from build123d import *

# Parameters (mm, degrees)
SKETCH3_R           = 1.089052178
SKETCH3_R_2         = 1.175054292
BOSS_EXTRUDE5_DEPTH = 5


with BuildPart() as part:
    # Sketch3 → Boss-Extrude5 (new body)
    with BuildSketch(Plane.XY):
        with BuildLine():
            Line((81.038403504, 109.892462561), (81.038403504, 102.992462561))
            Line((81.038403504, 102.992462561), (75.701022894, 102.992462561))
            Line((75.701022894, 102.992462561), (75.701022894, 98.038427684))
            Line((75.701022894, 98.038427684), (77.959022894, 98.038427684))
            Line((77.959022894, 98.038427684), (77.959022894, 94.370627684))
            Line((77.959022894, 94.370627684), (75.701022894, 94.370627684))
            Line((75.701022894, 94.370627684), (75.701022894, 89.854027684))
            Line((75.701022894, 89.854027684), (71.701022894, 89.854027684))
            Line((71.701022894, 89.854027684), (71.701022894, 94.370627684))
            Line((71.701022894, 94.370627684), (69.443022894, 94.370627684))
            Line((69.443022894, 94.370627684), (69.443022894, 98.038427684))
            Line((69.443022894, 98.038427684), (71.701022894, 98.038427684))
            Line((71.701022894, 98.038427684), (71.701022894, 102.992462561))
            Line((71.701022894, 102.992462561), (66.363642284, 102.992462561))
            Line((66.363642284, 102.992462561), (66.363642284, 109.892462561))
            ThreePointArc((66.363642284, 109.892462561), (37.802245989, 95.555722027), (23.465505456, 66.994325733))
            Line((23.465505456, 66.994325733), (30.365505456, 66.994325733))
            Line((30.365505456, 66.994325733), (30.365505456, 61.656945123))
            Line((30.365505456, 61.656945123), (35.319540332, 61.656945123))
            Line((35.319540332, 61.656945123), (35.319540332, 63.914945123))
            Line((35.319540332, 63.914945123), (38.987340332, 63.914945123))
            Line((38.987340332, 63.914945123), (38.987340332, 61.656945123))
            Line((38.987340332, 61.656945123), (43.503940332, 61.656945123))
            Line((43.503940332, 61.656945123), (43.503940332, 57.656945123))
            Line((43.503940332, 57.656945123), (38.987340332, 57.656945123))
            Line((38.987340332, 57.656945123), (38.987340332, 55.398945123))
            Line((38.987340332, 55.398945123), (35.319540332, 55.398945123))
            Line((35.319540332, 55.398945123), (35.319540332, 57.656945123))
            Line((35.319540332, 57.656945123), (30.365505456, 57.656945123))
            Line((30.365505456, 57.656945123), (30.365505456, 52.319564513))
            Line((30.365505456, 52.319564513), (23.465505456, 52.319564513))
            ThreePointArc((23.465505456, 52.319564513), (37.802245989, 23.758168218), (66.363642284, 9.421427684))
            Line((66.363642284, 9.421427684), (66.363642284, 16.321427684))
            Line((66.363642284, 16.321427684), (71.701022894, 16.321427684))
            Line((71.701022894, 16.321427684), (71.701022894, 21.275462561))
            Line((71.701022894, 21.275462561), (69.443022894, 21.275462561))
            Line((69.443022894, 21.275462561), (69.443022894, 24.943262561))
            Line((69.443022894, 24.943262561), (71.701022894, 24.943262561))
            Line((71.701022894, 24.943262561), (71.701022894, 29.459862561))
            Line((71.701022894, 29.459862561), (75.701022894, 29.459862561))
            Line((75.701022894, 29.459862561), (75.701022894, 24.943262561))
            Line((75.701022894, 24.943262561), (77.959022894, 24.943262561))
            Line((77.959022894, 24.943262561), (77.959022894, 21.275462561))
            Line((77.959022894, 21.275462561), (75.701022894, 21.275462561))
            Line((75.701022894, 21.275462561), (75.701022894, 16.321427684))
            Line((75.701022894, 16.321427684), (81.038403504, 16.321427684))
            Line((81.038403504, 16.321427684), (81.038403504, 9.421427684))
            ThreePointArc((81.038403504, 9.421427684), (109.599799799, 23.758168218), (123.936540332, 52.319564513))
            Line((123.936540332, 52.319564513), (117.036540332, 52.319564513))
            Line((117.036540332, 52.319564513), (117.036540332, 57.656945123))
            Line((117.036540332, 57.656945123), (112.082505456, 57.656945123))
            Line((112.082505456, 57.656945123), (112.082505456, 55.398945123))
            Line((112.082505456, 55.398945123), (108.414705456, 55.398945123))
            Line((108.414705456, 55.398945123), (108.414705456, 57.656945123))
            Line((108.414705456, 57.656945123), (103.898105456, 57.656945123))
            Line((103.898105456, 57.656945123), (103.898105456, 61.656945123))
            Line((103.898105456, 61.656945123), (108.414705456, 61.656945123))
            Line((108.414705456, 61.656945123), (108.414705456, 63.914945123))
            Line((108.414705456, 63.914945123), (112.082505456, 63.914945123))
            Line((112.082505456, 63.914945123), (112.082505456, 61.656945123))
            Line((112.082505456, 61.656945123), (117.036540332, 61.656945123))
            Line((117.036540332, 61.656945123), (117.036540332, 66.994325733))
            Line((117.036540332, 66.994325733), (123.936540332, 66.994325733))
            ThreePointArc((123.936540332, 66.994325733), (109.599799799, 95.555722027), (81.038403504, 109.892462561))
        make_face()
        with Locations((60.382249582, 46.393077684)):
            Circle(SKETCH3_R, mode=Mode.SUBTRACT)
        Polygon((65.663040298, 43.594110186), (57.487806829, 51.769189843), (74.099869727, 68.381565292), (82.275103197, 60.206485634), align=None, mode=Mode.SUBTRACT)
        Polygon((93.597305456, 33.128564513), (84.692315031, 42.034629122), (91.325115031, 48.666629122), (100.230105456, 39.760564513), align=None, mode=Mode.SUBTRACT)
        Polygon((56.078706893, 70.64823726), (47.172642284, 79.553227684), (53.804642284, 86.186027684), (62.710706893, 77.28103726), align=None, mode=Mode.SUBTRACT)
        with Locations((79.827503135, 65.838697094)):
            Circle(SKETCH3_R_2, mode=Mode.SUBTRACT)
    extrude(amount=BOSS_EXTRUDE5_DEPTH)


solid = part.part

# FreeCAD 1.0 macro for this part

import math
import FreeCAD as App
import Part
import Sketcher
from FreeCAD import Vector


def add_polygon(sketch, points):
    """Adds a closed chain of lines whose ends are joined by coincident constraints."""
    first, n = sketch.GeometryCount, len(points)
    for a, b in zip(points, points[1:] + points[:1]):
        sketch.addGeometry(Part.LineSegment(App.Vector(*a, 0), App.Vector(*b, 0)), False)
    for i in range(n):
        sketch.addConstraint(Sketcher.Constraint("Coincident", first + i, 2, first + (i + 1) % n, 1))

doc = App.newDocument("Part")
body = doc.addObject("PartDesign::Body", "Body")

sketch1 = body.newObject("Sketcher::SketchObject", "Sketch")
sketch1.AttachmentSupport = (doc.getObject("XY_Plane"), [""])
sketch1.MapMode = "FlatFace"
sketch1.addGeometry(Part.LineSegment(Vector(81, 109.9, 0), Vector(81, 103, 0)), False)
sketch1.addGeometry(Part.LineSegment(Vector(81, 103, 0), Vector(75.7, 103, 0)), False)
sketch1.addGeometry(Part.LineSegment(Vector(75.7, 103, 0), Vector(75.7, 98, 0)), False)
sketch1.addGeometry(Part.LineSegment(Vector(75.7, 98, 0), Vector(78, 98, 0)), False)
sketch1.addGeometry(Part.LineSegment(Vector(78, 98, 0), Vector(78, 94.4, 0)), False)
sketch1.addGeometry(Part.LineSegment(Vector(78, 94.4, 0), Vector(75.7, 94.4, 0)), False)
sketch1.addGeometry(Part.LineSegment(Vector(75.7, 94.4, 0), Vector(75.7, 89.9, 0)), False)
sketch1.addGeometry(Part.LineSegment(Vector(75.7, 89.9, 0), Vector(71.7, 89.9, 0)), False)
sketch1.addGeometry(Part.LineSegment(Vector(71.7, 89.9, 0), Vector(71.7, 94.4, 0)), False)
sketch1.addGeometry(Part.LineSegment(Vector(71.7, 94.4, 0), Vector(69.4, 94.4, 0)), False)
sketch1.addGeometry(Part.LineSegment(Vector(69.4, 94.4, 0), Vector(69.4, 98, 0)), False)
sketch1.addGeometry(Part.LineSegment(Vector(69.4, 98, 0), Vector(71.7, 98, 0)), False)
sketch1.addGeometry(Part.LineSegment(Vector(71.7, 98, 0), Vector(71.7, 103, 0)), False)
sketch1.addGeometry(Part.LineSegment(Vector(71.7, 103, 0), Vector(66.4, 103, 0)), False)
sketch1.addGeometry(Part.LineSegment(Vector(66.4, 103, 0), Vector(66.4, 109.9, 0)), False)
sketch1.addGeometry(Part.ArcOfCircle(Part.Circle(Vector(73.7, 59.7, 0), Vector(0, 0, 1), 50.8), math.radians(98), math.radians(172)), False)
sketch1.addGeometry(Part.LineSegment(Vector(23.5, 67, 0), Vector(30.4, 67, 0)), False)
sketch1.addGeometry(Part.LineSegment(Vector(30.4, 67, 0), Vector(30.4, 61.7, 0)), False)
sketch1.addGeometry(Part.LineSegment(Vector(30.4, 61.7, 0), Vector(35.3, 61.7, 0)), False)
sketch1.addGeometry(Part.LineSegment(Vector(35.3, 61.7, 0), Vector(35.3, 63.9, 0)), False)
sketch1.addGeometry(Part.LineSegment(Vector(35.3, 63.9, 0), Vector(39, 63.9, 0)), False)
sketch1.addGeometry(Part.LineSegment(Vector(39, 63.9, 0), Vector(39, 61.7, 0)), False)
sketch1.addGeometry(Part.LineSegment(Vector(39, 61.7, 0), Vector(43.5, 61.7, 0)), False)
sketch1.addGeometry(Part.LineSegment(Vector(43.5, 61.7, 0), Vector(43.5, 57.7, 0)), False)
sketch1.addGeometry(Part.LineSegment(Vector(43.5, 57.7, 0), Vector(39, 57.7, 0)), False)
sketch1.addGeometry(Part.LineSegment(Vector(39, 57.7, 0), Vector(39, 55.4, 0)), False)
sketch1.addGeometry(Part.LineSegment(Vector(39, 55.4, 0), Vector(35.3, 55.4, 0)), False)
sketch1.addGeometry(Part.LineSegment(Vector(35.3, 55.4, 0), Vector(35.3, 57.7, 0)), False)
sketch1.addGeometry(Part.LineSegment(Vector(35.3, 57.7, 0), Vector(30.4, 57.7, 0)), False)
sketch1.addGeometry(Part.LineSegment(Vector(30.4, 57.7, 0), Vector(30.4, 52.3, 0)), False)
sketch1.addGeometry(Part.LineSegment(Vector(30.4, 52.3, 0), Vector(23.5, 52.3, 0)), False)
sketch1.addGeometry(Part.ArcOfCircle(Part.Circle(Vector(73.7, 59.7, 0), Vector(0, 0, 1), 50.8), math.radians(-172), math.radians(-98)), False)
sketch1.addGeometry(Part.LineSegment(Vector(66.4, 9.4, 0), Vector(66.4, 16.3, 0)), False)
sketch1.addGeometry(Part.LineSegment(Vector(66.4, 16.3, 0), Vector(71.7, 16.3, 0)), False)
sketch1.addGeometry(Part.LineSegment(Vector(71.7, 16.3, 0), Vector(71.7, 21.3, 0)), False)
sketch1.addGeometry(Part.LineSegment(Vector(71.7, 21.3, 0), Vector(69.4, 21.3, 0)), False)
sketch1.addGeometry(Part.LineSegment(Vector(69.4, 21.3, 0), Vector(69.4, 24.9, 0)), False)
sketch1.addGeometry(Part.LineSegment(Vector(69.4, 24.9, 0), Vector(71.7, 24.9, 0)), False)
sketch1.addGeometry(Part.LineSegment(Vector(71.7, 24.9, 0), Vector(71.7, 29.5, 0)), False)
sketch1.addGeometry(Part.LineSegment(Vector(71.7, 29.5, 0), Vector(75.7, 29.5, 0)), False)
sketch1.addGeometry(Part.LineSegment(Vector(75.7, 29.5, 0), Vector(75.7, 24.9, 0)), False)
sketch1.addGeometry(Part.LineSegment(Vector(75.7, 24.9, 0), Vector(78, 24.9, 0)), False)
sketch1.addGeometry(Part.LineSegment(Vector(78, 24.9, 0), Vector(78, 21.3, 0)), False)
sketch1.addGeometry(Part.LineSegment(Vector(78, 21.3, 0), Vector(75.7, 21.3, 0)), False)
sketch1.addGeometry(Part.LineSegment(Vector(75.7, 21.3, 0), Vector(75.7, 16.3, 0)), False)
sketch1.addGeometry(Part.LineSegment(Vector(75.7, 16.3, 0), Vector(81, 16.3, 0)), False)
sketch1.addGeometry(Part.LineSegment(Vector(81, 16.3, 0), Vector(81, 9.4, 0)), False)
sketch1.addGeometry(Part.ArcOfCircle(Part.Circle(Vector(73.7, 59.7, 0), Vector(0, 0, 1), 50.8), math.radians(-82), math.radians(-8)), False)
sketch1.addGeometry(Part.LineSegment(Vector(123.9, 52.3, 0), Vector(117, 52.3, 0)), False)
sketch1.addGeometry(Part.LineSegment(Vector(117, 52.3, 0), Vector(117, 57.7, 0)), False)
sketch1.addGeometry(Part.LineSegment(Vector(117, 57.7, 0), Vector(112.1, 57.7, 0)), False)
sketch1.addGeometry(Part.LineSegment(Vector(112.1, 57.7, 0), Vector(112.1, 55.4, 0)), False)
sketch1.addGeometry(Part.LineSegment(Vector(112.1, 55.4, 0), Vector(108.4, 55.4, 0)), False)
sketch1.addGeometry(Part.LineSegment(Vector(108.4, 55.4, 0), Vector(108.4, 57.7, 0)), False)
sketch1.addGeometry(Part.LineSegment(Vector(108.4, 57.7, 0), Vector(103.9, 57.7, 0)), False)
sketch1.addGeometry(Part.LineSegment(Vector(103.9, 57.7, 0), Vector(103.9, 61.7, 0)), False)
sketch1.addGeometry(Part.LineSegment(Vector(103.9, 61.7, 0), Vector(108.4, 61.7, 0)), False)
sketch1.addGeometry(Part.LineSegment(Vector(108.4, 61.7, 0), Vector(108.4, 63.9, 0)), False)
sketch1.addGeometry(Part.LineSegment(Vector(108.4, 63.9, 0), Vector(112.1, 63.9, 0)), False)
sketch1.addGeometry(Part.LineSegment(Vector(112.1, 63.9, 0), Vector(112.1, 61.7, 0)), False)
sketch1.addGeometry(Part.LineSegment(Vector(112.1, 61.7, 0), Vector(117, 61.7, 0)), False)
sketch1.addGeometry(Part.LineSegment(Vector(117, 61.7, 0), Vector(117, 67, 0)), False)
sketch1.addGeometry(Part.LineSegment(Vector(117, 67, 0), Vector(123.9, 67, 0)), False)
sketch1.addGeometry(Part.ArcOfCircle(Part.Circle(Vector(73.7, 59.7, 0), Vector(0, 0, 1), 50.8), math.radians(8), math.radians(82)), False)
sketch1.addGeometry(Part.Circle(Vector(60.4, 46.4, 0), Vector(0, 0, 1), 1.1), False)
add_polygon(sketch1, [(82.3, 60.2), (65.7, 43.6), (57.5, 51.8), (74.1, 68.4)])
add_polygon(sketch1, [(100.2, 39.8), (93.6, 33.1), (84.7, 42), (91.3, 48.7)])
add_polygon(sketch1, [(62.7, 77.3), (56.1, 70.6), (47.2, 79.6), (53.8, 86.2)])
sketch1.addGeometry(Part.Circle(Vector(79.8, 65.8, 0), Vector(0, 0, 1), 1.2), False)
sketch1.addConstraint(Sketcher.Constraint("Coincident", 0, 2, 1, 1))
sketch1.addConstraint(Sketcher.Constraint("Coincident", 1, 2, 2, 1))
sketch1.addConstraint(Sketcher.Constraint("Coincident", 2, 2, 3, 1))
sketch1.addConstraint(Sketcher.Constraint("Coincident", 3, 2, 4, 1))
sketch1.addConstraint(Sketcher.Constraint("Coincident", 4, 2, 5, 1))
sketch1.addConstraint(Sketcher.Constraint("Coincident", 5, 2, 6, 1))
sketch1.addConstraint(Sketcher.Constraint("Coincident", 6, 2, 7, 1))
sketch1.addConstraint(Sketcher.Constraint("Coincident", 7, 2, 8, 1))
sketch1.addConstraint(Sketcher.Constraint("Coincident", 8, 2, 9, 1))
sketch1.addConstraint(Sketcher.Constraint("Coincident", 9, 2, 10, 1))
sketch1.addConstraint(Sketcher.Constraint("Coincident", 10, 2, 11, 1))
sketch1.addConstraint(Sketcher.Constraint("Coincident", 11, 2, 12, 1))
sketch1.addConstraint(Sketcher.Constraint("Coincident", 12, 2, 13, 1))
sketch1.addConstraint(Sketcher.Constraint("Coincident", 13, 2, 14, 1))
sketch1.addConstraint(Sketcher.Constraint("Coincident", 14, 2, 15, 1))
sketch1.addConstraint(Sketcher.Constraint("Coincident", 15, 2, 16, 1))
sketch1.addConstraint(Sketcher.Constraint("Coincident", 16, 2, 17, 1))
sketch1.addConstraint(Sketcher.Constraint("Coincident", 17, 2, 18, 1))
sketch1.addConstraint(Sketcher.Constraint("Coincident", 18, 2, 19, 1))
sketch1.addConstraint(Sketcher.Constraint("Coincident", 19, 2, 20, 1))
sketch1.addConstraint(Sketcher.Constraint("Coincident", 20, 2, 21, 1))
sketch1.addConstraint(Sketcher.Constraint("Coincident", 21, 2, 22, 1))
sketch1.addConstraint(Sketcher.Constraint("Coincident", 22, 2, 23, 1))
sketch1.addConstraint(Sketcher.Constraint("Coincident", 23, 2, 24, 1))
sketch1.addConstraint(Sketcher.Constraint("Coincident", 24, 2, 25, 1))
sketch1.addConstraint(Sketcher.Constraint("Coincident", 25, 2, 26, 1))
sketch1.addConstraint(Sketcher.Constraint("Coincident", 26, 2, 27, 1))
sketch1.addConstraint(Sketcher.Constraint("Coincident", 27, 2, 28, 1))
sketch1.addConstraint(Sketcher.Constraint("Coincident", 28, 2, 29, 1))
sketch1.addConstraint(Sketcher.Constraint("Coincident", 29, 2, 30, 1))
sketch1.addConstraint(Sketcher.Constraint("Coincident", 30, 2, 31, 1))
sketch1.addConstraint(Sketcher.Constraint("Coincident", 31, 2, 32, 1))
sketch1.addConstraint(Sketcher.Constraint("Coincident", 32, 2, 33, 1))
sketch1.addConstraint(Sketcher.Constraint("Coincident", 33, 2, 34, 1))
sketch1.addConstraint(Sketcher.Constraint("Coincident", 34, 2, 35, 1))
sketch1.addConstraint(Sketcher.Constraint("Coincident", 35, 2, 36, 1))
sketch1.addConstraint(Sketcher.Constraint("Coincident", 36, 2, 37, 1))
sketch1.addConstraint(Sketcher.Constraint("Coincident", 37, 2, 38, 1))
sketch1.addConstraint(Sketcher.Constraint("Coincident", 38, 2, 39, 1))
sketch1.addConstraint(Sketcher.Constraint("Coincident", 39, 2, 40, 1))
sketch1.addConstraint(Sketcher.Constraint("Coincident", 40, 2, 41, 1))
sketch1.addConstraint(Sketcher.Constraint("Coincident", 41, 2, 42, 1))
sketch1.addConstraint(Sketcher.Constraint("Coincident", 42, 2, 43, 1))
sketch1.addConstraint(Sketcher.Constraint("Coincident", 43, 2, 44, 1))
sketch1.addConstraint(Sketcher.Constraint("Coincident", 44, 2, 45, 1))
sketch1.addConstraint(Sketcher.Constraint("Coincident", 45, 2, 46, 1))
sketch1.addConstraint(Sketcher.Constraint("Coincident", 46, 2, 47, 1))
sketch1.addConstraint(Sketcher.Constraint("Coincident", 47, 2, 48, 1))
sketch1.addConstraint(Sketcher.Constraint("Coincident", 48, 2, 49, 1))
sketch1.addConstraint(Sketcher.Constraint("Coincident", 49, 2, 50, 1))
sketch1.addConstraint(Sketcher.Constraint("Coincident", 50, 2, 51, 1))
sketch1.addConstraint(Sketcher.Constraint("Coincident", 51, 2, 52, 1))
sketch1.addConstraint(Sketcher.Constraint("Coincident", 52, 2, 53, 1))
sketch1.addConstraint(Sketcher.Constraint("Coincident", 53, 2, 54, 1))
sketch1.addConstraint(Sketcher.Constraint("Coincident", 54, 2, 55, 1))
sketch1.addConstraint(Sketcher.Constraint("Coincident", 55, 2, 56, 1))
sketch1.addConstraint(Sketcher.Constraint("Coincident", 56, 2, 57, 1))
sketch1.addConstraint(Sketcher.Constraint("Coincident", 57, 2, 58, 1))
sketch1.addConstraint(Sketcher.Constraint("Coincident", 58, 2, 59, 1))
sketch1.addConstraint(Sketcher.Constraint("Coincident", 59, 2, 60, 1))
sketch1.addConstraint(Sketcher.Constraint("Coincident", 60, 2, 61, 1))
sketch1.addConstraint(Sketcher.Constraint("Coincident", 61, 2, 62, 1))
sketch1.addConstraint(Sketcher.Constraint("Coincident", 62, 2, 63, 1))
sketch1.addConstraint(Sketcher.Constraint("Coincident", 63, 2, 0, 1))
sketch1.addConstraint(Sketcher.Constraint("Vertical", 0))
sketch1.addConstraint(Sketcher.Constraint("Horizontal", 1))
sketch1.addConstraint(Sketcher.Constraint("Vertical", 2))
sketch1.addConstraint(Sketcher.Constraint("Horizontal", 3))
sketch1.addConstraint(Sketcher.Constraint("Vertical", 4))
sketch1.addConstraint(Sketcher.Constraint("Horizontal", 5))
sketch1.addConstraint(Sketcher.Constraint("Vertical", 6))
sketch1.addConstraint(Sketcher.Constraint("Horizontal", 7))
sketch1.addConstraint(Sketcher.Constraint("Vertical", 8))
sketch1.addConstraint(Sketcher.Constraint("Horizontal", 9))
sketch1.addConstraint(Sketcher.Constraint("Vertical", 10))
sketch1.addConstraint(Sketcher.Constraint("Horizontal", 11))
sketch1.addConstraint(Sketcher.Constraint("Vertical", 12))
sketch1.addConstraint(Sketcher.Constraint("Horizontal", 13))
sketch1.addConstraint(Sketcher.Constraint("Vertical", 14))
sketch1.addConstraint(Sketcher.Constraint("Horizontal", 16))
sketch1.addConstraint(Sketcher.Constraint("Vertical", 17))
sketch1.addConstraint(Sketcher.Constraint("Horizontal", 18))
sketch1.addConstraint(Sketcher.Constraint("Vertical", 19))
sketch1.addConstraint(Sketcher.Constraint("Horizontal", 20))
sketch1.addConstraint(Sketcher.Constraint("Vertical", 21))
sketch1.addConstraint(Sketcher.Constraint("Horizontal", 22))
sketch1.addConstraint(Sketcher.Constraint("Vertical", 23))
sketch1.addConstraint(Sketcher.Constraint("Horizontal", 24))
sketch1.addConstraint(Sketcher.Constraint("Vertical", 25))
sketch1.addConstraint(Sketcher.Constraint("Horizontal", 26))
sketch1.addConstraint(Sketcher.Constraint("Vertical", 27))
sketch1.addConstraint(Sketcher.Constraint("Horizontal", 28))
sketch1.addConstraint(Sketcher.Constraint("Vertical", 29))
sketch1.addConstraint(Sketcher.Constraint("Horizontal", 30))
sketch1.addConstraint(Sketcher.Constraint("Vertical", 32))
sketch1.addConstraint(Sketcher.Constraint("Horizontal", 33))
sketch1.addConstraint(Sketcher.Constraint("Vertical", 34))
sketch1.addConstraint(Sketcher.Constraint("Horizontal", 35))
sketch1.addConstraint(Sketcher.Constraint("Vertical", 36))
sketch1.addConstraint(Sketcher.Constraint("Horizontal", 37))
sketch1.addConstraint(Sketcher.Constraint("Vertical", 38))
sketch1.addConstraint(Sketcher.Constraint("Horizontal", 39))
sketch1.addConstraint(Sketcher.Constraint("Vertical", 40))
sketch1.addConstraint(Sketcher.Constraint("Horizontal", 41))
sketch1.addConstraint(Sketcher.Constraint("Vertical", 42))
sketch1.addConstraint(Sketcher.Constraint("Horizontal", 43))
sketch1.addConstraint(Sketcher.Constraint("Vertical", 44))
sketch1.addConstraint(Sketcher.Constraint("Horizontal", 45))
sketch1.addConstraint(Sketcher.Constraint("Vertical", 46))
sketch1.addConstraint(Sketcher.Constraint("Horizontal", 48))
sketch1.addConstraint(Sketcher.Constraint("Vertical", 49))
sketch1.addConstraint(Sketcher.Constraint("Horizontal", 50))
sketch1.addConstraint(Sketcher.Constraint("Vertical", 51))
sketch1.addConstraint(Sketcher.Constraint("Horizontal", 52))
sketch1.addConstraint(Sketcher.Constraint("Vertical", 53))
sketch1.addConstraint(Sketcher.Constraint("Horizontal", 54))
sketch1.addConstraint(Sketcher.Constraint("Vertical", 55))
sketch1.addConstraint(Sketcher.Constraint("Horizontal", 56))
sketch1.addConstraint(Sketcher.Constraint("Vertical", 57))
sketch1.addConstraint(Sketcher.Constraint("Horizontal", 58))
sketch1.addConstraint(Sketcher.Constraint("Vertical", 59))
sketch1.addConstraint(Sketcher.Constraint("Horizontal", 60))
sketch1.addConstraint(Sketcher.Constraint("Vertical", 61))
sketch1.addConstraint(Sketcher.Constraint("Horizontal", 62))
sketch1.addConstraint(Sketcher.Constraint("Coincident", 31, 3, 15, 3))
sketch1.addConstraint(Sketcher.Constraint("Coincident", 47, 3, 15, 3))
sketch1.addConstraint(Sketcher.Constraint("Coincident", 63, 3, 15, 3))
sketch1.addConstraint(Sketcher.Constraint("Equal", 15, 31))
sketch1.addConstraint(Sketcher.Constraint("Equal", 31, 47))
sketch1.addConstraint(Sketcher.Constraint("Equal", 47, 63))
sketch1.addConstraint(Sketcher.Constraint("Perpendicular", 65, 66))
sketch1.addConstraint(Sketcher.Constraint("Perpendicular", 66, 67))
sketch1.addConstraint(Sketcher.Constraint("Perpendicular", 67, 68))
sketch1.addConstraint(Sketcher.Constraint("Perpendicular", 69, 70))
sketch1.addConstraint(Sketcher.Constraint("Perpendicular", 70, 71))
sketch1.addConstraint(Sketcher.Constraint("Perpendicular", 71, 72))
sketch1.addConstraint(Sketcher.Constraint("Perpendicular", 73, 74))
sketch1.addConstraint(Sketcher.Constraint("Perpendicular", 74, 75))
sketch1.addConstraint(Sketcher.Constraint("Perpendicular", 75, 76))
sketch1.addConstraint(Sketcher.Constraint("Horizontal", 5, 2, 8, 2))
sketch1.addConstraint(Sketcher.Constraint("Horizontal", 3, 2, 10, 2))
sketch1.addConstraint(Sketcher.Constraint("Horizontal", 1, 2, 12, 2))
sketch1.addConstraint(Sketcher.Constraint("Horizontal", 18, 2, 21, 2))
sketch1.addConstraint(Sketcher.Constraint("Horizontal", 24, 2, 27, 2))
sketch1.addConstraint(Sketcher.Constraint("Horizontal", 37, 2, 40, 2))
sketch1.addConstraint(Sketcher.Constraint("Horizontal", 35, 2, 42, 2))
sketch1.addConstraint(Sketcher.Constraint("Horizontal", 33, 2, 44, 2))
sketch1.addConstraint(Sketcher.Constraint("Horizontal", 31, 2, 46, 2))
sketch1.addConstraint(Sketcher.Constraint("Horizontal", 30, 2, 47, 2))
sketch1.addConstraint(Sketcher.Constraint("Horizontal", 28, 2, 49, 2))
sketch1.addConstraint(Sketcher.Constraint("Horizontal", 26, 2, 51, 2))
sketch1.addConstraint(Sketcher.Constraint("Horizontal", 50, 2, 53, 2))
sketch1.addConstraint(Sketcher.Constraint("Horizontal", 22, 2, 55, 2))
sketch1.addConstraint(Sketcher.Constraint("Horizontal", 20, 2, 57, 2))
sketch1.addConstraint(Sketcher.Constraint("Horizontal", 56, 2, 59, 2))
sketch1.addConstraint(Sketcher.Constraint("Horizontal", 16, 2, 61, 2))
sketch1.addConstraint(Sketcher.Constraint("Horizontal", 14, 2, 63, 2))
sketch1.addConstraint(Sketcher.Constraint("Vertical", 2, 2, 5, 2))
sketch1.addConstraint(Sketcher.Constraint("Vertical", 8, 2, 11, 2))
sketch1.addConstraint(Sketcher.Constraint("Vertical", 21, 2, 24, 2))
sketch1.addConstraint(Sketcher.Constraint("Vertical", 19, 2, 26, 2))
sketch1.addConstraint(Sketcher.Constraint("Vertical", 17, 2, 28, 2))
sketch1.addConstraint(Sketcher.Constraint("Vertical", 15, 2, 30, 2))
sketch1.addConstraint(Sketcher.Constraint("Vertical", 14, 2, 31, 2))
sketch1.addConstraint(Sketcher.Constraint("Vertical", 12, 2, 33, 2))
sketch1.addConstraint(Sketcher.Constraint("Vertical", 10, 2, 35, 2))
sketch1.addConstraint(Sketcher.Constraint("Vertical", 34, 2, 37, 2))
sketch1.addConstraint(Sketcher.Constraint("Vertical", 6, 2, 39, 2))
sketch1.addConstraint(Sketcher.Constraint("Vertical", 4, 2, 41, 2))
sketch1.addConstraint(Sketcher.Constraint("Vertical", 40, 2, 43, 2))
sketch1.addConstraint(Sketcher.Constraint("Vertical", 53, 2, 56, 2))
sketch1.addConstraint(Sketcher.Constraint("Vertical", 51, 2, 58, 2))
sketch1.addConstraint(Sketcher.Constraint("Vertical", 49, 2, 60, 2))
sketch1.addConstraint(Sketcher.Constraint("Equal", 5, 9))
sketch1.addConstraint(Sketcher.Constraint("Equal", 1, 13))
sketch1.addConstraint(Sketcher.Constraint("Equal", 30, 48))
sketch1.addConstraint(Sketcher.Constraint("Equal", 28, 50))
sketch1.addConstraint(Sketcher.Constraint("Equal", 26, 52))
sketch1.addConstraint(Sketcher.Constraint("Equal", 24, 54))
sketch1.addConstraint(Sketcher.Constraint("Equal", 62, 0))
sketch1.addConstraint(Sketcher.Constraint("Equal", 60, 2))
sketch1.addConstraint(Sketcher.Constraint("Equal", 58, 4))
sketch1.addConstraint(Sketcher.Constraint("Equal", 56, 6))
sketch1.addConstraint(Sketcher.Constraint("Equal", 45, 17))
sketch1.addConstraint(Sketcher.Constraint("Equal", 43, 19))
sketch1.addConstraint(Sketcher.Constraint("Equal", 39, 23))
sketch1.addConstraint(Sketcher.Constraint("Equal", 21, 25))
sketch1.addConstraint(Sketcher.Constraint("Equal", 17, 29))
sketch1.addConstraint(Sketcher.Constraint("Equal", 14, 32))
sketch1.addConstraint(Sketcher.Constraint("Equal", 12, 34))
sketch1.addConstraint(Sketcher.Constraint("Equal", 10, 36))
sketch1.addConstraint(Sketcher.Constraint("Equal", 8, 38))
sketch1.addConstraint(Sketcher.Constraint("Equal", 71, 73))
sketch1.addConstraint(Sketcher.Constraint("Equal", 72, 74))
sketch1.addConstraint(Sketcher.Constraint("DistanceX", 7, 2, 7, 1, 4.0))
sketch1.addConstraint(Sketcher.Constraint("DistanceX", 16, 1, 16, 2, 6.9))
sketch1.addConstraint(Sketcher.Constraint("Diameter", 77, 2.350109))
sketch1.addConstraint(Sketcher.Constraint("DistanceX", 3, 1, 3, 2, 2.258))
sketch1.addConstraint(Sketcher.Constraint("Diameter", 64, 2.178104))
sketch1.addConstraint(Sketcher.Constraint("DistanceX", 20, 1, 20, 2, 3.6678))
sketch1.addConstraint(Sketcher.Constraint("DistanceX", 22, 1, 22, 2, 4.5166))
sketch1.addConstraint(Sketcher.Constraint("Radius", 15, 50.768537))
sketch1.addConstraint(Sketcher.Constraint("DistanceX", 1, 2, 1, 1, 5.337381))
sketch1.addConstraint(Sketcher.Constraint("Distance", 69, 9.37963))
sketch1.addConstraint(Sketcher.Constraint("DistanceX", 18, 1, 18, 2, 4.954035))
sketch1.addConstraint(Sketcher.Constraint("DistanceX", -1, 1, 64, 3, 60.38225))
sketch1.addConstraint(Sketcher.Constraint("DistanceX", -1, 1, 18, 2, 35.31954))
sketch1.addConstraint(Sketcher.Constraint("DistanceX", -1, 1, 65, 2, 65.66304))
sketch1.addConstraint(Sketcher.Constraint("DistanceY", -1, 1, 65, 2, 43.59411))
sketch1.addConstraint(Sketcher.Constraint("DistanceY", -1, 1, 66, 2, 51.76919))
sketch1.addConstraint(Sketcher.Constraint("DistanceX", -1, 1, 67, 2, 74.09987))
sketch1.addConstraint(Sketcher.Constraint("DistanceY", -1, 1, 70, 2, 42.034629))
sketch1.addConstraint(Sketcher.Constraint("DistanceY", -1, 1, 71, 2, 48.666629))
sketch1.addConstraint(Sketcher.Constraint("Distance", 65, 23.493226))
sketch1.addConstraint(Sketcher.Constraint("Distance", 70, 12.594318))
sketch1.addConstraint(Sketcher.Constraint("DistanceY", -1, 1, 15, 3, 59.656945))
sketch1.addConstraint(Sketcher.Constraint("DistanceY", -1, 1, 64, 3, 46.393078))
sketch1.addConstraint(Sketcher.Constraint("DistanceX", -1, 1, 77, 3, 79.827503))
sketch1.addConstraint(Sketcher.Constraint("DistanceY", -1, 1, 77, 3, 65.838697))
sketch1.addConstraint(Sketcher.Constraint("DistanceX", -1, 1, 69, 2, 93.597305))
sketch1.addConstraint(Sketcher.Constraint("DistanceX", -1, 1, 73, 2, 56.078707))
sketch1.addConstraint(Sketcher.Constraint("DistanceY", -1, 1, 73, 2, 70.648237))
sketch1.addConstraint(Sketcher.Constraint("DistanceX", -1, 1, 74, 2, 47.172642))
pad1 = body.newObject("PartDesign::Pad", "Pad")
pad1.Profile = sketch1
pad1.Length = 5

doc.recompute()
